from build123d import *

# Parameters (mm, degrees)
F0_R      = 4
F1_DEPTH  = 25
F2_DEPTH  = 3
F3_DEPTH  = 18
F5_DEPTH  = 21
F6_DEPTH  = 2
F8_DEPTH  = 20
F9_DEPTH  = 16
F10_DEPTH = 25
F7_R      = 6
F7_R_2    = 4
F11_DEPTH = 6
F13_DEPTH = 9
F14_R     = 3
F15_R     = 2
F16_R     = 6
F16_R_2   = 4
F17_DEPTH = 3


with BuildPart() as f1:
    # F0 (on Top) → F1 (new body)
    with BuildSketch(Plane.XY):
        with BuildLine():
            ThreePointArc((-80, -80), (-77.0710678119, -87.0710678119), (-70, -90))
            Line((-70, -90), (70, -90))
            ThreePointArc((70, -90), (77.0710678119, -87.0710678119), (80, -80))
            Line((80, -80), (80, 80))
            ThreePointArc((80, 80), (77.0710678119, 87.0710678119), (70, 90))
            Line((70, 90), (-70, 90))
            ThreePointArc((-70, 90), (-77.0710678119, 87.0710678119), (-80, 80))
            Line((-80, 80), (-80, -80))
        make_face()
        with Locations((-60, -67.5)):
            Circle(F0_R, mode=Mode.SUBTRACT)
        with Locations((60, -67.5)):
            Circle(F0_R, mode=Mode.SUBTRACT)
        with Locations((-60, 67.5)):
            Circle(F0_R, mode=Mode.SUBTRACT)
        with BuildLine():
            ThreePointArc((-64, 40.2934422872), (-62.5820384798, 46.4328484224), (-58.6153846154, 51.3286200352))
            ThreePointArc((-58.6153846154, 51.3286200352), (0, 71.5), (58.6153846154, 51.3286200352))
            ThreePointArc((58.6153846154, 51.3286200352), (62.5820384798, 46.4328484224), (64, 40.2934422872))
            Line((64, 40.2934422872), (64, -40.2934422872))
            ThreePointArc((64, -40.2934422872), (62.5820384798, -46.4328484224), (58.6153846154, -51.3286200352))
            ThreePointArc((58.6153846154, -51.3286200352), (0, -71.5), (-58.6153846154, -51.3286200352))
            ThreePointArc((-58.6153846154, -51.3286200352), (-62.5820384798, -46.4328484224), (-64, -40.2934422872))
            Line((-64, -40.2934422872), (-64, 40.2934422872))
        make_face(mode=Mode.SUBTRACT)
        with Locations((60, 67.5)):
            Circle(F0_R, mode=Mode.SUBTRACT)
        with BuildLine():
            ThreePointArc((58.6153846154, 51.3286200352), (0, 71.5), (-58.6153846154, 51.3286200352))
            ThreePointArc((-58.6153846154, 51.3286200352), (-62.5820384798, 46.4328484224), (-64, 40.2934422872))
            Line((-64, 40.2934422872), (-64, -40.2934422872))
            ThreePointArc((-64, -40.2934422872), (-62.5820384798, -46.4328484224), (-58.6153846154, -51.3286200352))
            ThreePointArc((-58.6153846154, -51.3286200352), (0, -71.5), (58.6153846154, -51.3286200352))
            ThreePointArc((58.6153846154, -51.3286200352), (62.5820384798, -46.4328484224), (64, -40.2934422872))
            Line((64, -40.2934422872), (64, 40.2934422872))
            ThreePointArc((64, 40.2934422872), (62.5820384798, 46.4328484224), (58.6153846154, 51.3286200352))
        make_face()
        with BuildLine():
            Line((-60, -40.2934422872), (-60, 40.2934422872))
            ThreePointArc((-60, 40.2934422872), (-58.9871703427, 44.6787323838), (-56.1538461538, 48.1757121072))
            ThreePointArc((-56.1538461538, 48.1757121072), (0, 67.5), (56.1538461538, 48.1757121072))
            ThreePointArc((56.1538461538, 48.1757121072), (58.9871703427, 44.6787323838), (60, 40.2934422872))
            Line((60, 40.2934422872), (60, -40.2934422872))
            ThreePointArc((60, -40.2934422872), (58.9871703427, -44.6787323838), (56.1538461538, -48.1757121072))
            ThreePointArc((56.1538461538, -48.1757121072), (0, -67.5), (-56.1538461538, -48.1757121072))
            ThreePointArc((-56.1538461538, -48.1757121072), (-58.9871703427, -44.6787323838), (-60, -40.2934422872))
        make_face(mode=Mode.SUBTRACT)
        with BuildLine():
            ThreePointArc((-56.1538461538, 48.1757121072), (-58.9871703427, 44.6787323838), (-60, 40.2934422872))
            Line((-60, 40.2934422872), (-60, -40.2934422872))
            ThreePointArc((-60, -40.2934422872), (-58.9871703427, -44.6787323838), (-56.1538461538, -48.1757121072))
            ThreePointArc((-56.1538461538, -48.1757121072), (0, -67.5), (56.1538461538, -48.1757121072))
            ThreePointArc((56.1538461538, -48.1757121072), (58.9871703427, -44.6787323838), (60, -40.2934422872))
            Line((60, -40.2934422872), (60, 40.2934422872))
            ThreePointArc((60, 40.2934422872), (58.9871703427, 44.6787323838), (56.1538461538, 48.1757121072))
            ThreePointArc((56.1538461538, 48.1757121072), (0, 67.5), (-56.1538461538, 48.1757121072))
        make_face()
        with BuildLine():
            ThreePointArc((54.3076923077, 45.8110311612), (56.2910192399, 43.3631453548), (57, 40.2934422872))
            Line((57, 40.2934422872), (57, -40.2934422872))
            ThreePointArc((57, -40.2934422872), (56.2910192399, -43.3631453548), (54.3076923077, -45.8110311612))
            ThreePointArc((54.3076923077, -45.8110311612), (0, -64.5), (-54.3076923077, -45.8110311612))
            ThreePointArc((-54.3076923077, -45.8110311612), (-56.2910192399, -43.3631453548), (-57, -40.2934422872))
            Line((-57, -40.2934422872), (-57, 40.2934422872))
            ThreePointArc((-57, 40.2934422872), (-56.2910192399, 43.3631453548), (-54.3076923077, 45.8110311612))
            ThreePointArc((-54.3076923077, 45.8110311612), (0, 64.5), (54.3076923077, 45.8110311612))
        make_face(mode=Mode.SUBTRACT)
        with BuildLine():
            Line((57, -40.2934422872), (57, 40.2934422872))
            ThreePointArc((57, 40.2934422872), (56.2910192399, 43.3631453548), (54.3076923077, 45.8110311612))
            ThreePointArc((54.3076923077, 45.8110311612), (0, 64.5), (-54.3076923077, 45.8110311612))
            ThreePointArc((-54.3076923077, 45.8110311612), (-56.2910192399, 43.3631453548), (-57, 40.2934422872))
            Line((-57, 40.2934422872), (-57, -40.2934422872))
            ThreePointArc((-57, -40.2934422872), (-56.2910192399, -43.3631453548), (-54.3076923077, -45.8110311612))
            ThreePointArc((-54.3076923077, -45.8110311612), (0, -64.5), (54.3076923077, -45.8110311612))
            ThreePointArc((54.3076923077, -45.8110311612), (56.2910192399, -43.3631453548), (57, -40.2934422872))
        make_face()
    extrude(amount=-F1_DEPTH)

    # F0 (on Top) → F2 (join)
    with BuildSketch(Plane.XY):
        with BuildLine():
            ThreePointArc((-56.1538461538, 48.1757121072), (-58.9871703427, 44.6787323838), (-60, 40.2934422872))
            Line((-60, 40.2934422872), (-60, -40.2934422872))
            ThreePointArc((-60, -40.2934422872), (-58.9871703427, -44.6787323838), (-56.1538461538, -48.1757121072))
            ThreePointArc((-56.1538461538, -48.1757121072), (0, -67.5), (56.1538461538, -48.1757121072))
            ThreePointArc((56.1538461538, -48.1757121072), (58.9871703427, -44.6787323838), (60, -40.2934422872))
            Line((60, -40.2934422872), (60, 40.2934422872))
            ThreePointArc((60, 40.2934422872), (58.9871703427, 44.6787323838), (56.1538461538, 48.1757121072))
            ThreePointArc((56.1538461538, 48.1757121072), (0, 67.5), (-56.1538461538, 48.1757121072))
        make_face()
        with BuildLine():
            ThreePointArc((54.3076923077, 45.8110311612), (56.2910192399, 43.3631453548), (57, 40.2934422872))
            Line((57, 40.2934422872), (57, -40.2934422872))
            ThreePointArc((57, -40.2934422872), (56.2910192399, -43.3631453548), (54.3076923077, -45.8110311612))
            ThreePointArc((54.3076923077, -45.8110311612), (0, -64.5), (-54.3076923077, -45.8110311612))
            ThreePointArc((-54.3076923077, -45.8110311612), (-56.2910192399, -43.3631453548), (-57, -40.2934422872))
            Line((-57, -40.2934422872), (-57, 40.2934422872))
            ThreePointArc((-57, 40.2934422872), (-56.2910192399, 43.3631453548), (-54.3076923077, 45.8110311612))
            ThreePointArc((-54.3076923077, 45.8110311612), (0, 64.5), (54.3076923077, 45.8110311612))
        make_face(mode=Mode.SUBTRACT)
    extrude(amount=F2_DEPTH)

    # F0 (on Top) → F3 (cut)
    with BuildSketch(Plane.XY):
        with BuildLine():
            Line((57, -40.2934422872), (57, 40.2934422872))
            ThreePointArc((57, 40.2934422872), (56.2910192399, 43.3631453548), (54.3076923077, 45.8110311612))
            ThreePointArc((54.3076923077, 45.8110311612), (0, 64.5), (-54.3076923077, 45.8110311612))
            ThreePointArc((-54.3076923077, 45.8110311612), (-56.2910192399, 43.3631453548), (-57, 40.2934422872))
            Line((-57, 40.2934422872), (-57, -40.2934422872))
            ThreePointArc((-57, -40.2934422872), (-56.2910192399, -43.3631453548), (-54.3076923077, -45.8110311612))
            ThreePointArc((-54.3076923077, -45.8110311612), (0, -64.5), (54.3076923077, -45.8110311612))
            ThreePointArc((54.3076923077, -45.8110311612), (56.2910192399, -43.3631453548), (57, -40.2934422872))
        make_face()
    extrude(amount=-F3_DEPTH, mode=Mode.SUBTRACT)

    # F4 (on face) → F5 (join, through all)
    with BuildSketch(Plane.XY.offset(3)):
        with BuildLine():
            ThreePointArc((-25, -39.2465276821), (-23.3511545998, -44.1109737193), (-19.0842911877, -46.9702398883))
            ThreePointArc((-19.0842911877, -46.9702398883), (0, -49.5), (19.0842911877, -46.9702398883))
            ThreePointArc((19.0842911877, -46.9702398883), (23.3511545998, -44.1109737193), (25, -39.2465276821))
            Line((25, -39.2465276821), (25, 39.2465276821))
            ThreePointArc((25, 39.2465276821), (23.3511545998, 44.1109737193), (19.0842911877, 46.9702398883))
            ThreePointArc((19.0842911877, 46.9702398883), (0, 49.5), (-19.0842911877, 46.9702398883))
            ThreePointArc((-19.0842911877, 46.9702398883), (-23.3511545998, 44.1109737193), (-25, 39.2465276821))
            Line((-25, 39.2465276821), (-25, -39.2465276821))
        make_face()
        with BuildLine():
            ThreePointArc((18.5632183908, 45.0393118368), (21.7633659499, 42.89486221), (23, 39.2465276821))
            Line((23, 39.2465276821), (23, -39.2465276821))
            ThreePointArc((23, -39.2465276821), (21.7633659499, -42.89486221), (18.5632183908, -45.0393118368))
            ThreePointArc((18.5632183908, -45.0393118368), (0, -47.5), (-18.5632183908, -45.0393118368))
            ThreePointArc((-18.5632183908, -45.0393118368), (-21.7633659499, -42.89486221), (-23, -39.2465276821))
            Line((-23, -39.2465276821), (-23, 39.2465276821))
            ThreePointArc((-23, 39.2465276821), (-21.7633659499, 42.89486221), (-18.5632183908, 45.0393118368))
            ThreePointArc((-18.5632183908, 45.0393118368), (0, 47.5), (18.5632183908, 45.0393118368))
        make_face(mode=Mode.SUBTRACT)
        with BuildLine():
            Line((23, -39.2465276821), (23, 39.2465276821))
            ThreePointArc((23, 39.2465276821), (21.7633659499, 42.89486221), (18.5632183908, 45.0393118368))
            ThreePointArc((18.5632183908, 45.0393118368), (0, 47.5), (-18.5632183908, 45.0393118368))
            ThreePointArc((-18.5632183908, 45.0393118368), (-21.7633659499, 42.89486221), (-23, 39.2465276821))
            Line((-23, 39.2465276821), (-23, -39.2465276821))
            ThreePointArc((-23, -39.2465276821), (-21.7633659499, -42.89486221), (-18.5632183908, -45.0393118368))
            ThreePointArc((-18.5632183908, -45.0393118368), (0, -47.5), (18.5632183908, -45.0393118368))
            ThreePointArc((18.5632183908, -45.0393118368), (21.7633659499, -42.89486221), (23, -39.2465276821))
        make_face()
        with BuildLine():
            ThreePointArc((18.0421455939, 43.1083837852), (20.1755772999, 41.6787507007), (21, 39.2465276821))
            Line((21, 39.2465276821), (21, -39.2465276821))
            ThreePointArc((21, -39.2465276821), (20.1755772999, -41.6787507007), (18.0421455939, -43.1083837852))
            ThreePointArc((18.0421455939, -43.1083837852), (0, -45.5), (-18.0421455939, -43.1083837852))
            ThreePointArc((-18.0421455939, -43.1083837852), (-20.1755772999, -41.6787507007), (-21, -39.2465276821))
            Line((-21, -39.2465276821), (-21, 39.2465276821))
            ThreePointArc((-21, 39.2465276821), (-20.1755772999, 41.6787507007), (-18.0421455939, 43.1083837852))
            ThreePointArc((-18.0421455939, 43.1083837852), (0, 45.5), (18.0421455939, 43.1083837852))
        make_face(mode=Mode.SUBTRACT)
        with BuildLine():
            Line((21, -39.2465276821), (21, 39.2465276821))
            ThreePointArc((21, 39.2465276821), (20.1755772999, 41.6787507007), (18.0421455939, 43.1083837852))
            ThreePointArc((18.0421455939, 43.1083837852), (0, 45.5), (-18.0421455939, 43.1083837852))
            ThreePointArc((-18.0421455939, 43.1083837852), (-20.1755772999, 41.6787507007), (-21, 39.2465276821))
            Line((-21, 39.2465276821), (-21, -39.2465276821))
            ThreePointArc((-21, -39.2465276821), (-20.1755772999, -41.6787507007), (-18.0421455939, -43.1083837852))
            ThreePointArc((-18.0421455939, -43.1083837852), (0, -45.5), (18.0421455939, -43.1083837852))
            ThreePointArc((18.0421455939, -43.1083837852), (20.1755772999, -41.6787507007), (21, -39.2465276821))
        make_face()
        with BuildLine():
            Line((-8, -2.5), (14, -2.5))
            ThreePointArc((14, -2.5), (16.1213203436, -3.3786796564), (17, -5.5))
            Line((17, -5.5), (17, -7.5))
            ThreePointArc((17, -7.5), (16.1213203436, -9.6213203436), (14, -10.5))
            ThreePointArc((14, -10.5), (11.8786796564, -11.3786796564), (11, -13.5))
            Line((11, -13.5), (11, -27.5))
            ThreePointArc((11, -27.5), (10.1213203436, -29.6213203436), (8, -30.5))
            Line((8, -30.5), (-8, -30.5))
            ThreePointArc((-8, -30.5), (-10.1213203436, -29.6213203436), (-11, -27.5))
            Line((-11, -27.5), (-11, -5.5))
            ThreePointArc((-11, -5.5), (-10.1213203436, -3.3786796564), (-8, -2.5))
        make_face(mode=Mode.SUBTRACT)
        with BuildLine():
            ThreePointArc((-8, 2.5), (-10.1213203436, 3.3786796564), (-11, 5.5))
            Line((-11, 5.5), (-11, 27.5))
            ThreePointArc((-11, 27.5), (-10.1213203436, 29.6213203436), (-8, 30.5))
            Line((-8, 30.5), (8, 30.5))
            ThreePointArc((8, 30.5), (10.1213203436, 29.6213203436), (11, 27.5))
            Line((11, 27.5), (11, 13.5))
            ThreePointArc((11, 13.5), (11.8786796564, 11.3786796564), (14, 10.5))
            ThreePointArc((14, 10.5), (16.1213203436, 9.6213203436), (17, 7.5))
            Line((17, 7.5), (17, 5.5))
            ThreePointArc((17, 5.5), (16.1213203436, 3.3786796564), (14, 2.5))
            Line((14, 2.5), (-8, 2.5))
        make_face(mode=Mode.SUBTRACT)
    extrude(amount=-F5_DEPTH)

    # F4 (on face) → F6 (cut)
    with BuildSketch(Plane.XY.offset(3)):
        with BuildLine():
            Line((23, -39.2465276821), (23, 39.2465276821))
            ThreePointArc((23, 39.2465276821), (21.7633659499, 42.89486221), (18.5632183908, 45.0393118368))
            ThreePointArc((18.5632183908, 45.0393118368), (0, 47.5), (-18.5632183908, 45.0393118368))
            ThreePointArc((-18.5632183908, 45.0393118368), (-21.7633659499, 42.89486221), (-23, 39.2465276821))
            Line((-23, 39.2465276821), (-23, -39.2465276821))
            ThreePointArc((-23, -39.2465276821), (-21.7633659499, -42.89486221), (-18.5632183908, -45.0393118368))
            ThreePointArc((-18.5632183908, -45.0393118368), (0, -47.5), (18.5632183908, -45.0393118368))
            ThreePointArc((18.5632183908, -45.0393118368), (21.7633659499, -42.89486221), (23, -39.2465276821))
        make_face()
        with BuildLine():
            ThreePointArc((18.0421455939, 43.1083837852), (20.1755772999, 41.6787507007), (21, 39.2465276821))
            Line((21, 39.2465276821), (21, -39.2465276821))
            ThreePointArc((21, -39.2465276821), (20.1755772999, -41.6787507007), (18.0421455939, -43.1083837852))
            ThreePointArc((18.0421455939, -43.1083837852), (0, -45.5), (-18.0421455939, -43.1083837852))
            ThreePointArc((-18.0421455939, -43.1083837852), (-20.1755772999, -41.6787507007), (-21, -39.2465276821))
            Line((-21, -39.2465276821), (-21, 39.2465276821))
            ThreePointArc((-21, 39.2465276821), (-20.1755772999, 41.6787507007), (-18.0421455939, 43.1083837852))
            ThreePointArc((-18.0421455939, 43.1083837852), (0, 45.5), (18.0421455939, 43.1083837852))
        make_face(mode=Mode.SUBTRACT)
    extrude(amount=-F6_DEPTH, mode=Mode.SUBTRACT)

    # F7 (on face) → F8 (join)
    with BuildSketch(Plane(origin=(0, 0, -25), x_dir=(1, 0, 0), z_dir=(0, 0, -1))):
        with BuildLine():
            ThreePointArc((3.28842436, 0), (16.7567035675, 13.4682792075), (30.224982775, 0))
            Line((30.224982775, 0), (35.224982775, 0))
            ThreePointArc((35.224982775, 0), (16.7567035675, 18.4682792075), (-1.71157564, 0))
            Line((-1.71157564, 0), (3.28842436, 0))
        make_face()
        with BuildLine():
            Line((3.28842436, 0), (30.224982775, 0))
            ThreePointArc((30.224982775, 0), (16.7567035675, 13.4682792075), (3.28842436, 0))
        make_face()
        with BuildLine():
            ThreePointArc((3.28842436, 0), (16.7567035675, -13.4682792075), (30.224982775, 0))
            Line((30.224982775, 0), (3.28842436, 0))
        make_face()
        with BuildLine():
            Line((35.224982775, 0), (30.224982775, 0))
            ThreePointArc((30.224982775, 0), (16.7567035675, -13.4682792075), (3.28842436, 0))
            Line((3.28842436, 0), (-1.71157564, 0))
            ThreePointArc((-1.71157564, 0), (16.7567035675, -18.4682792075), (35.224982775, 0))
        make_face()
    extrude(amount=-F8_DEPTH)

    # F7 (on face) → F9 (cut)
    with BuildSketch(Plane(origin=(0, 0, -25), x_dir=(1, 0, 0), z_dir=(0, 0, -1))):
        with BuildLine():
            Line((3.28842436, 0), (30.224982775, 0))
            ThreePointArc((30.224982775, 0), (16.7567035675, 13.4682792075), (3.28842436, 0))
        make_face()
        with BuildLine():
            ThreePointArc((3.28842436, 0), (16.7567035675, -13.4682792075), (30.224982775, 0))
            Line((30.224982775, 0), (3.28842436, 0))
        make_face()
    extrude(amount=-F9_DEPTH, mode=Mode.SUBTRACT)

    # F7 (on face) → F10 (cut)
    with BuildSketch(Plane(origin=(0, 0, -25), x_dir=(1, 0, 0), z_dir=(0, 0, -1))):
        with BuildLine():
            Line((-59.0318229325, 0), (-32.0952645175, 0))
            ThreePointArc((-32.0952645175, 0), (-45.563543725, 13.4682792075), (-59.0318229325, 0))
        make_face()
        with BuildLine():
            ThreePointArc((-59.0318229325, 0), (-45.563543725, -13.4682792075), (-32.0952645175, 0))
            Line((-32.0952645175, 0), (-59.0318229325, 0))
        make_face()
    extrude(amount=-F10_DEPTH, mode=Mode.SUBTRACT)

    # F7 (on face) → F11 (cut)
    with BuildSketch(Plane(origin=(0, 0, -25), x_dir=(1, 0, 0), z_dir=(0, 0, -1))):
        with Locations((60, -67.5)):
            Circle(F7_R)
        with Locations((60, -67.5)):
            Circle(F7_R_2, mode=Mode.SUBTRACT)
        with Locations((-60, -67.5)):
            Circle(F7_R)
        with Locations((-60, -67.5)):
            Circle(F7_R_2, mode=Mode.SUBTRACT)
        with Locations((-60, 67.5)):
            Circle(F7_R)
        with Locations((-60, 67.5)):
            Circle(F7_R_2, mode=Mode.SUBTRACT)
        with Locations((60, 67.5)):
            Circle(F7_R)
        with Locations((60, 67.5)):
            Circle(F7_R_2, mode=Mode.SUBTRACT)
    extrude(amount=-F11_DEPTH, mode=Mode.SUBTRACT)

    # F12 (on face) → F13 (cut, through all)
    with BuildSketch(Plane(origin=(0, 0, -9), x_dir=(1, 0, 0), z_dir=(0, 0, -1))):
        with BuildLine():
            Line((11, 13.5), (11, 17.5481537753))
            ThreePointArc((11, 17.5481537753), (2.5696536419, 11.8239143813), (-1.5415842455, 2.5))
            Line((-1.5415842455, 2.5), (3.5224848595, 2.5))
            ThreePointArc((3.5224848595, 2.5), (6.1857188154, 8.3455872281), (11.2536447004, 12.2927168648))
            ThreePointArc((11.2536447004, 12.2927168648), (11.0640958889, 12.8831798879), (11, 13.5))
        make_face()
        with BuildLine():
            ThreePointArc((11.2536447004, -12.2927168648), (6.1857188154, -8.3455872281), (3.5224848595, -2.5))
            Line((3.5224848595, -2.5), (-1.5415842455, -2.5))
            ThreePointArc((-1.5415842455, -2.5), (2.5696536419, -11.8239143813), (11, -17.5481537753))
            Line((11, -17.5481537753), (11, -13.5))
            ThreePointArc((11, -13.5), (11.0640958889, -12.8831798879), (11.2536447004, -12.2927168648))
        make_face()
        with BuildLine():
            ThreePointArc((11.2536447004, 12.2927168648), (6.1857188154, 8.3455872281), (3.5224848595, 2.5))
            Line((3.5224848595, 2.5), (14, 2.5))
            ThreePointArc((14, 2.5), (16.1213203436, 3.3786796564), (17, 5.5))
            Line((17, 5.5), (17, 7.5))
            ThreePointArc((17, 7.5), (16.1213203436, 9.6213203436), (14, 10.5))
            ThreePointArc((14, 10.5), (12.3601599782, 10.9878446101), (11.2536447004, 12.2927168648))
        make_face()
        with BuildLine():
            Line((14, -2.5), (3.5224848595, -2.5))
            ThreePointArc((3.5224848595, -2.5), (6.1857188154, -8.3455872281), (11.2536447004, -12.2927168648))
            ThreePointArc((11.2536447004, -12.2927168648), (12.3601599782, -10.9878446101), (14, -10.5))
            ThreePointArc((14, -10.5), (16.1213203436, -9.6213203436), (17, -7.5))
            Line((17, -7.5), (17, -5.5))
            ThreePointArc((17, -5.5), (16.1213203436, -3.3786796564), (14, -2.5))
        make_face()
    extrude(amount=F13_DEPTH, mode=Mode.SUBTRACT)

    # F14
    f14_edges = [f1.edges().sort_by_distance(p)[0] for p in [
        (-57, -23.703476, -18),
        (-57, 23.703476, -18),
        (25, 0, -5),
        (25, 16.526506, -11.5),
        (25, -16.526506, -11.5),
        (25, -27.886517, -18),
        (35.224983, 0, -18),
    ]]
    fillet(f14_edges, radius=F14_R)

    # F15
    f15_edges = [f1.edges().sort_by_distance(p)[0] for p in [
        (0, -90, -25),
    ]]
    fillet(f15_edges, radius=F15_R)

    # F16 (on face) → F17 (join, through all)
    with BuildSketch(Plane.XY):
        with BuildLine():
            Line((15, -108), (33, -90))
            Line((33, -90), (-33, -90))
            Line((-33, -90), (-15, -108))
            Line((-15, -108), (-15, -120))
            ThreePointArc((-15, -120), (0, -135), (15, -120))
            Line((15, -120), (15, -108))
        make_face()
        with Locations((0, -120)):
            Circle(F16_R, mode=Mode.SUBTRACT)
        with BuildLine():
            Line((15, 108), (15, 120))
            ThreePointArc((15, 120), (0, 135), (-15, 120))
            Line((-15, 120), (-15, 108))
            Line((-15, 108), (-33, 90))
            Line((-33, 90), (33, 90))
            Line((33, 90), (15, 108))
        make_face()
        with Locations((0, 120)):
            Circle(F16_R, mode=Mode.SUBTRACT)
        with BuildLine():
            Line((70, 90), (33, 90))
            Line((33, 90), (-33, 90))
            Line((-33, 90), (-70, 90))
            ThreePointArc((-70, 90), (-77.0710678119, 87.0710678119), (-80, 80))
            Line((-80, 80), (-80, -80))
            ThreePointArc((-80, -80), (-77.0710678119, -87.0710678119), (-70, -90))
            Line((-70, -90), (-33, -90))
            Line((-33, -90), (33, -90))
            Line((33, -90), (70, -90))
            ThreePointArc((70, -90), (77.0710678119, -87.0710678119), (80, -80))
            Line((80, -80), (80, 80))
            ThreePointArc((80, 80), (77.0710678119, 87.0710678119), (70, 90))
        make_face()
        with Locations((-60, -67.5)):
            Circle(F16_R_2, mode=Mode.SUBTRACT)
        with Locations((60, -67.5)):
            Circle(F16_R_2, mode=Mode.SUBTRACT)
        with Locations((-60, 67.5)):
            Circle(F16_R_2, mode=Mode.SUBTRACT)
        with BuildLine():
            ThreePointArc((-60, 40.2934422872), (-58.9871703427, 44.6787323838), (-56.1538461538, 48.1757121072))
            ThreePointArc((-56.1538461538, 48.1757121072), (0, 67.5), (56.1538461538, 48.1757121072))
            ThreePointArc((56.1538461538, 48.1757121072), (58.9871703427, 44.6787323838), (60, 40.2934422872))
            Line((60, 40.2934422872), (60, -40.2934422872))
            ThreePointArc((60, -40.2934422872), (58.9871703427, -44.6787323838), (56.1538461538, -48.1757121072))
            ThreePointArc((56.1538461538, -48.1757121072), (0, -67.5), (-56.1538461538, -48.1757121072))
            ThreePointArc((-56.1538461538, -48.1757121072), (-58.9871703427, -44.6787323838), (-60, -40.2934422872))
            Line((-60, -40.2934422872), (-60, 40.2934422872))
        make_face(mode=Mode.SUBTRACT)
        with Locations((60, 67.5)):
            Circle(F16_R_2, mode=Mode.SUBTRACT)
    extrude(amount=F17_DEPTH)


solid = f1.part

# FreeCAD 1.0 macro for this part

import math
import FreeCAD as App
import Part
import Sketcher

V = App.Vector
Q = App.Units.Quantity


def edges_at(feature, points):
    """Names of the edges that pass closest to the given points."""
    edges = feature.Shape.Edges
    near = lambda p: min(range(len(edges)), key=lambda i: edges[i].distToShape(Part.Vertex(*p))[0])
    return sorted({f"Edge{near(p) + 1}" for p in points})

doc = App.newDocument("Part")
body = doc.addObject("PartDesign::Body", "Body")

sketch1 = body.newObject("Sketcher::SketchObject", "Sketch")
sketch1.AttachmentSupport = (doc.getObject("XY_Plane"), [""])
sketch1.MapMode = "FlatFace"
sketch1.addGeometry([
    Part.ArcOfCircle(Part.Circle(V(-70, -80, 0), V(0, 0, 1), 10), math.radians(180), math.radians(270)),
    Part.LineSegment(V(-70, -90, 0), V(70, -90, 0)),
    Part.ArcOfCircle(Part.Circle(V(70, -80, 0), V(0, 0, 1), 10), math.radians(-90), math.radians(0)),
    Part.LineSegment(V(80, -80, 0), V(80, 80, 0)),
    Part.ArcOfCircle(Part.Circle(V(70, 80, 0), V(0, 0, 1), 10), math.radians(0), math.radians(90)),
    Part.LineSegment(V(70, 90, 0), V(-70, 90, 0)),
    Part.ArcOfCircle(Part.Circle(V(-70, 80, 0), V(0, 0, 1), 10), math.radians(90), math.radians(180)),
    Part.LineSegment(V(-80, 80, 0), V(-80, -80, 0)),
    Part.Circle(V(-60, -67.5, 0), V(0, 0, 1), 4),
    Part.Circle(V(60, -67.5, 0), V(0, 0, 1), 4),
    Part.Circle(V(-60, 67.5, 0), V(0, 0, 1), 4),
    Part.Circle(V(60, 67.5, 0), V(0, 0, 1), 4),
], False)
sketch1.addConstraint([
    Sketcher.Constraint("Tangent", 0, 2, 1, 1),
    Sketcher.Constraint("Tangent", 1, 2, 2, 1),
    Sketcher.Constraint("Tangent", 2, 2, 3, 1),
    Sketcher.Constraint("Tangent", 3, 2, 4, 1),
    Sketcher.Constraint("Tangent", 4, 2, 5, 1),
    Sketcher.Constraint("Tangent", 5, 2, 6, 1),
    Sketcher.Constraint("Tangent", 6, 2, 7, 1),
    Sketcher.Constraint("Tangent", 7, 2, 0, 1),
    Sketcher.Constraint("Horizontal", 1),
    Sketcher.Constraint("Vertical", 3),
    Sketcher.Constraint("Horizontal", 5),
    Sketcher.Constraint("Vertical", 7),
    Sketcher.Constraint("Equal", 0, 2),
    Sketcher.Constraint("Equal", 2, 4),
    Sketcher.Constraint("Equal", 4, 6),
    Sketcher.Constraint("Equal", 8, 9),
    Sketcher.Constraint("Equal", 9, 10),
    Sketcher.Constraint("Equal", 10, 11),
    Sketcher.Constraint("Symmetric", 0, 3, 4, 3, -1, 1),
    Sketcher.Constraint("Symmetric", 9, 3, 10, 3, -1, 1),
    Sketcher.Constraint("Symmetric", 8, 3, 11, 3, -1, 1),
    Sketcher.Constraint("Symmetric", 8, 3, 9, 3, -2),
    Sketcher.Constraint("Diameter", 8, Q("8 mm")),
    Sketcher.Constraint("Radius", 0, Q("10 mm")),
    Sketcher.Constraint("DistanceX", 1, 1, 1, 2, Q("140 mm")),
    Sketcher.Constraint("DistanceY", 3, 1, 3, 2, Q("160 mm")),
    Sketcher.Constraint("DistanceX", 8, 3, -1, 1, Q("60 mm")),
    Sketcher.Constraint("DistanceY", 8, 3, 10, 3, Q("135 mm")),
])
pad1 = body.newObject("PartDesign::Pad", "Pad")
pad1.Profile = sketch1
pad1.Length = 25
pad1.Reversed = True

sketch2 = body.newObject("Sketcher::SketchObject", "Sketch001")
sketch2.AttachmentSupport = (doc.getObject("XY_Plane"), [""])
sketch2.MapMode = "FlatFace"
sketch2.addGeometry([
    Part.ArcOfCircle(Part.Circle(V(-50, 40, 0), V(0, 0, 1), 10), math.radians(128), math.radians(180)),
    Part.LineSegment(V(-60, 40, 0), V(-60, -40, 0)),
    Part.ArcOfCircle(Part.Circle(V(-50, -40, 0), V(0, 0, 1), 10), math.radians(180), math.radians(232)),
    Part.ArcOfCircle(Part.Circle(V(0, 24, 0), V(0, 0, 1), 91), math.radians(-128), math.radians(-52)),
    Part.ArcOfCircle(Part.Circle(V(50, -40, 0), V(0, 0, 1), 10), math.radians(-52), math.radians(0)),
    Part.LineSegment(V(60, -40, 0), V(60, 40, 0)),
    Part.ArcOfCircle(Part.Circle(V(50, 40, 0), V(0, 0, 1), 10), math.radians(0), math.radians(52)),
    Part.ArcOfCircle(Part.Circle(V(0, -24, 0), V(0, 0, 1), 91), math.radians(52), math.radians(128)),
    Part.ArcOfCircle(Part.Circle(V(0, -24, 0), V(0, 0, 1), 88), math.radians(52), math.radians(128)),
    Part.ArcOfCircle(Part.Circle(V(50, 40, 0), V(0, 0, 1), 7), math.radians(0), math.radians(52)),
    Part.LineSegment(V(57, 40, 0), V(57, -40, 0)),
    Part.ArcOfCircle(Part.Circle(V(50, -40, 0), V(0, 0, 1), 7), math.radians(-52), math.radians(0)),
    Part.ArcOfCircle(Part.Circle(V(0, 24, 0), V(0, 0, 1), 88), math.radians(-128), math.radians(-52)),
    Part.ArcOfCircle(Part.Circle(V(-50, -40, 0), V(0, 0, 1), 7), math.radians(180), math.radians(232)),
    Part.LineSegment(V(-57, -40, 0), V(-57, 40, 0)),
    Part.ArcOfCircle(Part.Circle(V(-50, 40, 0), V(0, 0, 1), 7), math.radians(128), math.radians(180)),
], False)
sketch2.addConstraint([
    Sketcher.Constraint("Tangent", 0, 2, 1, 1),
    Sketcher.Constraint("Tangent", 1, 2, 2, 1),
    Sketcher.Constraint("Tangent", 2, 2, 3, 1),
    Sketcher.Constraint("Tangent", 3, 2, 4, 1),
    Sketcher.Constraint("Tangent", 4, 2, 5, 1),
    Sketcher.Constraint("Tangent", 5, 2, 6, 1),
    Sketcher.Constraint("Tangent", 6, 2, 7, 1),
    Sketcher.Constraint("Tangent", 7, 2, 0, 1),
    Sketcher.Constraint("Tangent", 8, 1, 9, 2),
    Sketcher.Constraint("Tangent", 9, 1, 10, 1),
    Sketcher.Constraint("Tangent", 10, 2, 11, 2),
    Sketcher.Constraint("Tangent", 11, 1, 12, 2),
    Sketcher.Constraint("Tangent", 12, 1, 13, 2),
    Sketcher.Constraint("Tangent", 13, 1, 14, 1),
    Sketcher.Constraint("Tangent", 14, 2, 15, 2),
    Sketcher.Constraint("Tangent", 15, 1, 8, 2),
    Sketcher.Constraint("Vertical", 1),
    Sketcher.Constraint("Vertical", 5),
    Sketcher.Constraint("Vertical", 10),
    Sketcher.Constraint("Vertical", 14),
    Sketcher.Constraint("Coincident", 8, 3, 7, 3),
    Sketcher.Constraint("Coincident", 9, 3, 6, 3),
    Sketcher.Constraint("Coincident", 11, 3, 4, 3),
    Sketcher.Constraint("Coincident", 12, 3, 3, 3),
    Sketcher.Constraint("Coincident", 13, 3, 2, 3),
    Sketcher.Constraint("Equal", 0, 2),
    Sketcher.Constraint("Equal", 2, 4),
    Sketcher.Constraint("Equal", 4, 6),
    Sketcher.Constraint("Equal", 3, 7),
    Sketcher.Constraint("Equal", 13, 15),
    Sketcher.Constraint("Symmetric", 0, 3, 4, 3, -1, 1),
    Sketcher.Constraint("Symmetric", 3, 3, 7, 3, -1),
    Sketcher.Constraint("Radius", 0, Q("10 mm")),
    Sketcher.Constraint("Radius", 9, Q("7 mm")),
    Sketcher.Constraint("Radius", 3, Q("91.25 mm")),
    Sketcher.Constraint("DistanceX", 0, 3, -1, 1, Q("50 mm")),
    Sketcher.Constraint("DistanceY", 7, 3, 3, 3, Q("47.5 mm")),
])
pad2 = body.newObject("PartDesign::Pad", "Pad001")
pad2.Profile = sketch2
pad2.Length = 3

sketch3 = body.newObject("Sketcher::SketchObject", "Sketch002")
sketch3.AttachmentSupport = (doc.getObject("XY_Plane"), [""])
sketch3.MapMode = "FlatFace"
sketch3.addGeometry([
    Part.LineSegment(V(57, -40, 0), V(57, 40, 0)),
    Part.ArcOfCircle(Part.Circle(V(50, 40, 0), V(0, 0, 1), 7), math.radians(0), math.radians(52)),
    Part.ArcOfCircle(Part.Circle(V(0, -24, 0), V(0, 0, 1), 88), math.radians(52), math.radians(128)),
    Part.ArcOfCircle(Part.Circle(V(-50, 40, 0), V(0, 0, 1), 7), math.radians(128), math.radians(180)),
    Part.LineSegment(V(-57, 40, 0), V(-57, -40, 0)),
    Part.ArcOfCircle(Part.Circle(V(-50, -40, 0), V(0, 0, 1), 7), math.radians(180), math.radians(232)),
    Part.ArcOfCircle(Part.Circle(V(0, 24, 0), V(0, 0, 1), 88), math.radians(-128), math.radians(-52)),
    Part.ArcOfCircle(Part.Circle(V(50, -40, 0), V(0, 0, 1), 7), math.radians(-52), math.radians(0)),
], False)
sketch3.addConstraint([
    Sketcher.Constraint("Tangent", 0, 2, 1, 1),
    Sketcher.Constraint("Tangent", 1, 2, 2, 1),
    Sketcher.Constraint("Tangent", 2, 2, 3, 1),
    Sketcher.Constraint("Tangent", 3, 2, 4, 1),
    Sketcher.Constraint("Tangent", 4, 2, 5, 1),
    Sketcher.Constraint("Tangent", 5, 2, 6, 1),
    Sketcher.Constraint("Tangent", 6, 2, 7, 1),
    Sketcher.Constraint("Tangent", 7, 2, 0, 1),
    Sketcher.Constraint("Vertical", 0),
    Sketcher.Constraint("Vertical", 4),
    Sketcher.Constraint("Equal", 1, 3),
    Sketcher.Constraint("Equal", 3, 5),
    Sketcher.Constraint("Equal", 2, 6),
    Sketcher.Constraint("Equal", 5, 7),
    Sketcher.Constraint("Symmetric", 1, 3, 5, 3, -1, 1),
    Sketcher.Constraint("Symmetric", 2, 3, 6, 3, -1),
    Sketcher.Constraint("Radius", 1, Q("7 mm")),
    Sketcher.Constraint("Radius", 2, Q("88.25 mm")),
    Sketcher.Constraint("DistanceX", -1, 1, 1, 3, Q("50 mm")),
    Sketcher.Constraint("DistanceY", 2, 3, 6, 3, Q("47.5 mm")),
])
pocket1 = body.newObject("PartDesign::Pocket", "Pocket")
pocket1.Profile = sketch3
pocket1.Length = 18

sketch4 = body.newObject("Sketcher::SketchObject", "Sketch003")
sketch4.AttachmentSupport = (doc.getObject("XY_Plane"), [""])
sketch4.MapMode = "FlatFace"
sketch4.AttachmentOffset = App.Placement(V(0, 0, 3), App.Rotation())
sketch4.addGeometry([
    Part.ArcOfCircle(Part.Circle(V(-17, -39.2, 0), V(0, 0, 1), 8), math.radians(180), math.radians(255)),
    Part.ArcOfCircle(Part.Circle(V(0, 23.7, 0), V(0, 0, 1), 73.2), math.radians(-105), math.radians(-75)),
    Part.ArcOfCircle(Part.Circle(V(17, -39.2, 0), V(0, 0, 1), 8), math.radians(-75), math.radians(0)),
    Part.LineSegment(V(25, -39.2, 0), V(25, 39.2, 0)),
    Part.ArcOfCircle(Part.Circle(V(17, 39.2, 0), V(0, 0, 1), 8), math.radians(0), math.radians(75)),
    Part.ArcOfCircle(Part.Circle(V(0, -23.7, 0), V(0, 0, 1), 73.2), math.radians(75), math.radians(105)),
    Part.ArcOfCircle(Part.Circle(V(-17, 39.2, 0), V(0, 0, 1), 8), math.radians(105), math.radians(180)),
    Part.LineSegment(V(-25, 39.2, 0), V(-25, -39.2, 0)),
    Part.ArcOfCircle(Part.Circle(V(-8, -5.5, 0), V(0, 0, 1), 3), math.radians(90), math.radians(180)),
    Part.LineSegment(V(-8, -2.5, 0), V(14, -2.5, 0)),
    Part.ArcOfCircle(Part.Circle(V(14, -5.5, 0), V(0, 0, 1), 3), math.radians(0), math.radians(90)),
    Part.LineSegment(V(17, -5.5, 0), V(17, -7.5, 0)),
    Part.ArcOfCircle(Part.Circle(V(14, -7.5, 0), V(0, 0, 1), 3), math.radians(-90), math.radians(0)),
    Part.ArcOfCircle(Part.Circle(V(14, -13.5, 0), V(0, 0, 1), 3), math.radians(90), math.radians(180)),
    Part.LineSegment(V(11, -13.5, 0), V(11, -27.5, 0)),
    Part.ArcOfCircle(Part.Circle(V(8, -27.5, 0), V(0, 0, 1), 3), math.radians(-90), math.radians(0)),
    Part.LineSegment(V(8, -30.5, 0), V(-8, -30.5, 0)),
    Part.ArcOfCircle(Part.Circle(V(-8, -27.5, 0), V(0, 0, 1), 3), math.radians(180), math.radians(270)),
    Part.LineSegment(V(-11, -27.5, 0), V(-11, -5.5, 0)),
    Part.LineSegment(V(14, 2.5, 0), V(-8, 2.5, 0)),
    Part.ArcOfCircle(Part.Circle(V(-8, 5.5, 0), V(0, 0, 1), 3), math.radians(180), math.radians(270)),
    Part.LineSegment(V(-11, 5.5, 0), V(-11, 27.5, 0)),
    Part.ArcOfCircle(Part.Circle(V(-8, 27.5, 0), V(0, 0, 1), 3), math.radians(90), math.radians(180)),
    Part.LineSegment(V(-8, 30.5, 0), V(8, 30.5, 0)),
    Part.ArcOfCircle(Part.Circle(V(8, 27.5, 0), V(0, 0, 1), 3), math.radians(0), math.radians(90)),
    Part.LineSegment(V(11, 27.5, 0), V(11, 13.5, 0)),
    Part.ArcOfCircle(Part.Circle(V(14, 13.5, 0), V(0, 0, 1), 3), math.radians(180), math.radians(270)),
    Part.ArcOfCircle(Part.Circle(V(14, 7.5, 0), V(0, 0, 1), 3), math.radians(0), math.radians(90)),
    Part.LineSegment(V(17, 7.5, 0), V(17, 5.5, 0)),
    Part.ArcOfCircle(Part.Circle(V(14, 5.5, 0), V(0, 0, 1), 3), math.radians(-90), math.radians(0)),
], False)
sketch4.addConstraint([
    Sketcher.Constraint("Tangent", 0, 2, 1, 1),
    Sketcher.Constraint("Tangent", 1, 2, 2, 1),
    Sketcher.Constraint("Tangent", 2, 2, 3, 1),
    Sketcher.Constraint("Tangent", 3, 2, 4, 1),
    Sketcher.Constraint("Tangent", 4, 2, 5, 1),
    Sketcher.Constraint("Tangent", 5, 2, 6, 1),
    Sketcher.Constraint("Tangent", 6, 2, 7, 1),
    Sketcher.Constraint("Tangent", 7, 2, 0, 1),
    Sketcher.Constraint("Tangent", 8, 1, 9, 1),
    Sketcher.Constraint("Tangent", 9, 2, 10, 2),
    Sketcher.Constraint("Tangent", 10, 1, 11, 1),
    Sketcher.Constraint("Tangent", 11, 2, 12, 2),
    Sketcher.Constraint("Tangent", 12, 1, 13, 1),
    Sketcher.Constraint("Tangent", 13, 2, 14, 1),
    Sketcher.Constraint("Tangent", 14, 2, 15, 2),
    Sketcher.Constraint("Tangent", 15, 1, 16, 1),
    Sketcher.Constraint("Tangent", 16, 2, 17, 2),
    Sketcher.Constraint("Tangent", 17, 1, 18, 1),
    Sketcher.Constraint("Tangent", 18, 2, 8, 2),
    Sketcher.Constraint("Tangent", 19, 2, 20, 2),
    Sketcher.Constraint("Tangent", 20, 1, 21, 1),
    Sketcher.Constraint("Tangent", 21, 2, 22, 2),
    Sketcher.Constraint("Tangent", 22, 1, 23, 1),
    Sketcher.Constraint("Tangent", 23, 2, 24, 2),
    Sketcher.Constraint("Tangent", 24, 1, 25, 1),
    Sketcher.Constraint("Tangent", 25, 2, 26, 1),
    Sketcher.Constraint("Tangent", 26, 2, 27, 2),
    Sketcher.Constraint("Tangent", 27, 1, 28, 1),
    Sketcher.Constraint("Tangent", 28, 2, 29, 2),
    Sketcher.Constraint("Tangent", 29, 1, 19, 1),
    Sketcher.Constraint("Vertical", 3),
    Sketcher.Constraint("Vertical", 7),
    Sketcher.Constraint("Horizontal", 9),
    Sketcher.Constraint("Vertical", 11),
    Sketcher.Constraint("Vertical", 14),
    Sketcher.Constraint("Horizontal", 16),
    Sketcher.Constraint("Vertical", 18),
    Sketcher.Constraint("Horizontal", 19),
    Sketcher.Constraint("Vertical", 21),
    Sketcher.Constraint("Horizontal", 23),
    Sketcher.Constraint("Vertical", 25),
    Sketcher.Constraint("Vertical", 28),
    Sketcher.Constraint("Equal", 0, 2),
    Sketcher.Constraint("Equal", 2, 4),
    Sketcher.Constraint("Equal", 1, 5),
    Sketcher.Constraint("Equal", 4, 6),
    Sketcher.Constraint("Equal", 8, 10),
    Sketcher.Constraint("Equal", 10, 12),
    Sketcher.Constraint("Equal", 12, 13),
    Sketcher.Constraint("Equal", 13, 15),
    Sketcher.Constraint("Equal", 15, 17),
    Sketcher.Constraint("Equal", 17, 20),
    Sketcher.Constraint("Equal", 20, 22),
    Sketcher.Constraint("Equal", 22, 24),
    Sketcher.Constraint("Equal", 24, 26),
    Sketcher.Constraint("Equal", 26, 27),
    Sketcher.Constraint("Equal", 27, 29),
    Sketcher.Constraint("Symmetric", 0, 3, 4, 3, -1, 1),
    Sketcher.Constraint("Symmetric", 15, 3, 22, 3, -1, 1),
    Sketcher.Constraint("Symmetric", 1, 3, 5, 3, -1),
    Sketcher.Constraint("Symmetric", 8, 3, 20, 3, -1),
    Sketcher.Constraint("Symmetric", 13, 3, 26, 3, -1),
    Sketcher.Constraint("Vertical", 12, 3, 13, 3),
    Sketcher.Constraint("Vertical", 26, 3, 27, 3),
    Sketcher.Constraint("Vertical", 4, 3, 10, 1),
    Sketcher.Constraint("Equal", 19, 18),
    Sketcher.Constraint("Radius", 0, Q("8 mm")),
    Sketcher.Constraint("Radius", 8, Q("3 mm")),
    Sketcher.Constraint("DistanceX", 9, 1, 9, 2, Q("22 mm")),
    Sketcher.Constraint("DistanceY", 11, 2, 11, 1, Q("2 mm")),
    Sketcher.Constraint("Radius", 1, Q("73.25 mm")),
    Sketcher.Constraint("DistanceY", 8, 3, 20, 3, Q("11 mm")),
    Sketcher.Constraint("DistanceY", 5, 3, 1, 3, Q("47.5 mm")),
])
pad3 = body.newObject("PartDesign::Pad", "Pad002")
pad3.Profile = sketch4
pad3.Type = "UpToLast"
pad3.Reversed = True

sketch5 = body.newObject("Sketcher::SketchObject", "Sketch004")
sketch5.AttachmentSupport = (doc.getObject("XY_Plane"), [""])
sketch5.MapMode = "FlatFace"
sketch5.AttachmentOffset = App.Placement(V(0, 0, 3), App.Rotation())
sketch5.addGeometry([
    Part.LineSegment(V(23, -39.2, 0), V(23, 39.2, 0)),
    Part.ArcOfCircle(Part.Circle(V(17, 39.2, 0), V(0, 0, 1), 6), math.radians(0), math.radians(75)),
    Part.ArcOfCircle(Part.Circle(V(0, -23.8, 0), V(0, 0, 1), 71.3), math.radians(75), math.radians(105)),
    Part.ArcOfCircle(Part.Circle(V(-17, 39.2, 0), V(0, 0, 1), 6), math.radians(105), math.radians(180)),
    Part.LineSegment(V(-23, 39.2, 0), V(-23, -39.2, 0)),
    Part.ArcOfCircle(Part.Circle(V(-17, -39.2, 0), V(0, 0, 1), 6), math.radians(180), math.radians(255)),
    Part.ArcOfCircle(Part.Circle(V(0, 23.8, 0), V(0, 0, 1), 71.3), math.radians(-105), math.radians(-75)),
    Part.ArcOfCircle(Part.Circle(V(17, -39.2, 0), V(0, 0, 1), 6), math.radians(-75), math.radians(0)),
    Part.ArcOfCircle(Part.Circle(V(0, -23.8, 0), V(0, 0, 1), 69.2), math.radians(75), math.radians(105)),
    Part.ArcOfCircle(Part.Circle(V(17, 39.2, 0), V(0, 0, 1), 4), math.radians(0), math.radians(75)),
    Part.LineSegment(V(21, 39.2, 0), V(21, -39.2, 0)),
    Part.ArcOfCircle(Part.Circle(V(17, -39.2, 0), V(0, 0, 1), 4), math.radians(-75), math.radians(0)),
    Part.ArcOfCircle(Part.Circle(V(0, 23.8, 0), V(0, 0, 1), 69.2), math.radians(-105), math.radians(-75)),
    Part.ArcOfCircle(Part.Circle(V(-17, -39.2, 0), V(0, 0, 1), 4), math.radians(180), math.radians(255)),
    Part.LineSegment(V(-21, -39.2, 0), V(-21, 39.2, 0)),
    Part.ArcOfCircle(Part.Circle(V(-17, 39.2, 0), V(0, 0, 1), 4), math.radians(105), math.radians(180)),
], False)
sketch5.addConstraint([
    Sketcher.Constraint("Tangent", 0, 2, 1, 1),
    Sketcher.Constraint("Tangent", 1, 2, 2, 1),
    Sketcher.Constraint("Tangent", 2, 2, 3, 1),
    Sketcher.Constraint("Tangent", 3, 2, 4, 1),
    Sketcher.Constraint("Tangent", 4, 2, 5, 1),
    Sketcher.Constraint("Tangent", 5, 2, 6, 1),
    Sketcher.Constraint("Tangent", 6, 2, 7, 1),
    Sketcher.Constraint("Tangent", 7, 2, 0, 1),
    Sketcher.Constraint("Tangent", 8, 1, 9, 2),
    Sketcher.Constraint("Tangent", 9, 1, 10, 1),
    Sketcher.Constraint("Tangent", 10, 2, 11, 2),
    Sketcher.Constraint("Tangent", 11, 1, 12, 2),
    Sketcher.Constraint("Tangent", 12, 1, 13, 2),
    Sketcher.Constraint("Tangent", 13, 1, 14, 1),
    Sketcher.Constraint("Tangent", 14, 2, 15, 2),
    Sketcher.Constraint("Tangent", 15, 1, 8, 2),
    Sketcher.Constraint("Vertical", 0),
    Sketcher.Constraint("Vertical", 4),
    Sketcher.Constraint("Vertical", 10),
    Sketcher.Constraint("Vertical", 14),
    Sketcher.Constraint("Coincident", 8, 3, 2, 3),
    Sketcher.Constraint("Coincident", 9, 3, 1, 3),
    Sketcher.Constraint("Coincident", 11, 3, 7, 3),
    Sketcher.Constraint("Coincident", 12, 3, 6, 3),
    Sketcher.Constraint("Coincident", 13, 3, 5, 3),
    Sketcher.Constraint("Equal", 1, 3),
    Sketcher.Constraint("Equal", 3, 5),
    Sketcher.Constraint("Equal", 2, 6),
    Sketcher.Constraint("Equal", 5, 7),
    Sketcher.Constraint("Equal", 13, 15),
    Sketcher.Constraint("Symmetric", 1, 3, 5, 3, -1, 1),
    Sketcher.Constraint("Symmetric", 2, 3, 6, 3, -1),
    Sketcher.Constraint("Radius", 1, Q("6 mm")),
    Sketcher.Constraint("Radius", 9, Q("4 mm")),
    Sketcher.Constraint("Radius", 2, Q("71.25 mm")),
    Sketcher.Constraint("DistanceX", -1, 1, 1, 3, Q("17 mm")),
    Sketcher.Constraint("DistanceY", 2, 3, 6, 3, Q("47.5 mm")),
])
pocket2 = body.newObject("PartDesign::Pocket", "Pocket001")
pocket2.Profile = sketch5
pocket2.Length = 2

sketch6 = body.newObject("Sketcher::SketchObject", "Sketch005")
sketch6.AttachmentSupport = (doc.getObject("XY_Plane"), [""])
sketch6.MapMode = "FlatFace"
sketch6.AttachmentOffset = App.Placement(V(0, 0, -25), App.Rotation())
sketch6.addGeometry(Part.Circle(V(17, 0, 0), V(0, 0, 1), 18), False)
sketch6.addConstraint([
    Sketcher.Constraint("PointOnObject", 0, 3, -1),
    Sketcher.Constraint("Diameter", 0, Q("36.936558 mm")),
    Sketcher.Constraint("DistanceX", -1, 1, 0, 3, Q("16.756704 mm")),
])
pad4 = body.newObject("PartDesign::Pad", "Pad003")
pad4.Profile = sketch6
pad4.Length = 20

sketch7 = body.newObject("Sketcher::SketchObject", "Sketch006")
sketch7.AttachmentSupport = (doc.getObject("XY_Plane"), [""])
sketch7.MapMode = "FlatFace"
sketch7.AttachmentOffset = App.Placement(V(0, 0, -25), App.Rotation())
sketch7.addGeometry(Part.Circle(V(17, 0, 0), V(0, 0, 1), 13), False)
sketch7.addConstraint([
    Sketcher.Constraint("PointOnObject", 0, 3, -1),
    Sketcher.Constraint("Diameter", 0, Q("26.936558 mm")),
    Sketcher.Constraint("DistanceX", -1, 1, 0, 3, Q("16.756704 mm")),
])
pocket3 = body.newObject("PartDesign::Pocket", "Pocket002")
pocket3.Profile = sketch7
pocket3.Length = 16
pocket3.Reversed = True

sketch8 = body.newObject("Sketcher::SketchObject", "Sketch007")
sketch8.AttachmentSupport = (doc.getObject("XY_Plane"), [""])
sketch8.MapMode = "FlatFace"
sketch8.AttachmentOffset = App.Placement(V(0, 0, -25), App.Rotation())
sketch8.addGeometry(Part.Circle(V(-46, 0, 0), V(0, 0, 1), 13), False)
sketch8.addConstraint([
    Sketcher.Constraint("PointOnObject", 0, 3, -1),
    Sketcher.Constraint("Diameter", 0, Q("26.936558 mm")),
    Sketcher.Constraint("DistanceX", 0, 3, -1, 1, Q("45.563544 mm")),
])
pocket4 = body.newObject("PartDesign::Pocket", "Pocket003")
pocket4.Profile = sketch8
pocket4.Length = 25
pocket4.Reversed = True

sketch9 = body.newObject("Sketcher::SketchObject", "Sketch008")
sketch9.AttachmentSupport = (doc.getObject("XY_Plane"), [""])
sketch9.MapMode = "FlatFace"
sketch9.AttachmentOffset = App.Placement(V(0, 0, -25), App.Rotation())
sketch9.addGeometry([
    Part.Circle(V(60, 67.5, 0), V(0, 0, 1), 6),
    Part.Circle(V(60, 67.5, 0), V(0, 0, 1), 4),
    Part.Circle(V(-60, 67.5, 0), V(0, 0, 1), 6),
    Part.Circle(V(-60, 67.5, 0), V(0, 0, 1), 4),
    Part.Circle(V(-60, -67.5, 0), V(0, 0, 1), 6),
    Part.Circle(V(-60, -67.5, 0), V(0, 0, 1), 4),
    Part.Circle(V(60, -67.5, 0), V(0, 0, 1), 6),
    Part.Circle(V(60, -67.5, 0), V(0, 0, 1), 4),
], False)
sketch9.addConstraint([
    Sketcher.Constraint("Coincident", 1, 3, 0, 3),
    Sketcher.Constraint("Coincident", 3, 3, 2, 3),
    Sketcher.Constraint("Coincident", 5, 3, 4, 3),
    Sketcher.Constraint("Coincident", 7, 3, 6, 3),
    Sketcher.Constraint("Equal", 0, 2),
    Sketcher.Constraint("Equal", 1, 3),
    Sketcher.Constraint("Equal", 2, 4),
    Sketcher.Constraint("Equal", 3, 5),
    Sketcher.Constraint("Equal", 4, 6),
    Sketcher.Constraint("Equal", 5, 7),
    Sketcher.Constraint("Symmetric", 0, 3, 4, 3, -1, 1),
    Sketcher.Constraint("Symmetric", 2, 3, 6, 3, -1, 1),
    Sketcher.Constraint("Symmetric", 0, 3, 2, 3, -2),
    Sketcher.Constraint("Diameter", 0, Q("12 mm")),
    Sketcher.Constraint("Diameter", 1, Q("8 mm")),
    Sketcher.Constraint("DistanceX", -1, 1, 0, 3, Q("60 mm")),
    Sketcher.Constraint("DistanceY", 4, 3, 2, 3, Q("135 mm")),
])
pocket5 = body.newObject("PartDesign::Pocket", "Pocket004")
pocket5.Profile = sketch9
pocket5.Length = 6
pocket5.Reversed = True

sketch10 = body.newObject("Sketcher::SketchObject", "Sketch009")
sketch10.AttachmentSupport = (doc.getObject("XY_Plane"), [""])
sketch10.MapMode = "FlatFace"
sketch10.AttachmentOffset = App.Placement(V(0, 0, -9), App.Rotation())
sketch10.addGeometry([
    Part.LineSegment(V(11, -13.5, 0), V(11, -17.5, 0)),
    Part.ArcOfCircle(Part.Circle(V(16.8, 0, 0), V(0, 0, 1), 18.5), math.radians(-172), math.radians(-108)),
    Part.LineSegment(V(-1.5, -2.5, 0), V(14, -2.5, 0)),
    Part.ArcOfCircle(Part.Circle(V(14, -5.5, 0), V(0, 0, 1), 3), math.radians(0), math.radians(90)),
    Part.LineSegment(V(17, -5.5, 0), V(17, -7.5, 0)),
    Part.ArcOfCircle(Part.Circle(V(14, -7.5, 0), V(0, 0, 1), 3), math.radians(-90), math.radians(0)),
    Part.ArcOfCircle(Part.Circle(V(14, -13.5, 0), V(0, 0, 1), 3), math.radians(90), math.radians(156)),
    Part.ArcOfCircle(Part.Circle(V(14, -13.5, 0), V(0, 0, 1), 3), math.radians(156), math.radians(180)),
    Part.ArcOfCircle(Part.Circle(V(16.8, 0, 0), V(0, 0, 1), 18.5), math.radians(108), math.radians(172)),
    Part.LineSegment(V(11, 17.5, 0), V(11, 13.5, 0)),
    Part.ArcOfCircle(Part.Circle(V(14, 13.5, 0), V(0, 0, 1), 3), math.radians(180), math.radians(204)),
    Part.ArcOfCircle(Part.Circle(V(14, 13.5, 0), V(0, 0, 1), 3), math.radians(-156), math.radians(-90)),
    Part.ArcOfCircle(Part.Circle(V(14, 7.5, 0), V(0, 0, 1), 3), math.radians(0), math.radians(90)),
    Part.LineSegment(V(17, 7.5, 0), V(17, 5.5, 0)),
    Part.ArcOfCircle(Part.Circle(V(14, 5.5, 0), V(0, 0, 1), 3), math.radians(-90), math.radians(0)),
    Part.LineSegment(V(14, 2.5, 0), V(-1.5, 2.5, 0)),
], False)
sketch10.addConstraint([
    Sketcher.Constraint("Coincident", 0, 2, 1, 2),
    Sketcher.Constraint("Coincident", 1, 1, 2, 1),
    Sketcher.Constraint("Tangent", 2, 2, 3, 2),
    Sketcher.Constraint("Tangent", 3, 1, 4, 1),
    Sketcher.Constraint("Tangent", 4, 2, 5, 2),
    Sketcher.Constraint("Tangent", 5, 1, 6, 1),
    Sketcher.Constraint("Tangent", 6, 2, 7, 1),
    Sketcher.Constraint("Tangent", 7, 2, 0, 1),
    Sketcher.Constraint("Coincident", 8, 1, 9, 1),
    Sketcher.Constraint("Tangent", 9, 2, 10, 1),
    Sketcher.Constraint("Tangent", 10, 2, 11, 1),
    Sketcher.Constraint("Tangent", 11, 2, 12, 2),
    Sketcher.Constraint("Tangent", 12, 1, 13, 1),
    Sketcher.Constraint("Tangent", 13, 2, 14, 2),
    Sketcher.Constraint("Tangent", 14, 1, 15, 1),
    Sketcher.Constraint("Coincident", 15, 2, 8, 2),
    Sketcher.Constraint("Vertical", 0),
    Sketcher.Constraint("Horizontal", 2),
    Sketcher.Constraint("Vertical", 4),
    Sketcher.Constraint("Vertical", 9),
    Sketcher.Constraint("Vertical", 13),
    Sketcher.Constraint("Horizontal", 15),
    Sketcher.Constraint("Coincident", 8, 3, 1, 3),
    Sketcher.Constraint("Equal", 3, 5),
    Sketcher.Constraint("Equal", 5, 6),
    Sketcher.Constraint("Equal", 6, 7),
    Sketcher.Constraint("Equal", 1, 8),
    Sketcher.Constraint("Equal", 7, 10),
    Sketcher.Constraint("Equal", 10, 11),
    Sketcher.Constraint("Equal", 11, 12),
    Sketcher.Constraint("Equal", 12, 14),
    Sketcher.Constraint("Symmetric", 6, 3, 10, 3, -1),
    Sketcher.Constraint("Symmetric", 3, 3, 14, 3, -1),
    Sketcher.Constraint("PointOnObject", 1, 3, -1),
    Sketcher.Constraint("Vertical", 5, 3, 6, 3),
    Sketcher.Constraint("Vertical", 6, 2, 10, 2),
    Sketcher.Constraint("Radius", 3, Q("3 mm")),
    Sketcher.Constraint("DistanceY", 4, 2, 4, 1, Q("2 mm")),
    Sketcher.Constraint("DistanceX", -1, 1, 3, 3, Q("14 mm")),
    Sketcher.Constraint("DistanceY", 3, 3, 10, 3, Q("19 mm")),
    Sketcher.Constraint("Radius", 1, Q("18.468279 mm")),
    Sketcher.Constraint("DistanceX", 2, 1, 2, 2, Q("15.541584 mm")),
    Sketcher.Constraint("DistanceX", 15, 2, 10, 2, Q("12.795229 mm")),
])
pocket6 = body.newObject("PartDesign::Pocket", "Pocket005")
pocket6.Profile = sketch10
pocket6.Length = 9
doc.recompute()

fillet = body.newObject("PartDesign::Fillet", "Fillet")
fillet.Base = (pocket6, edges_at(pocket6, [
    (-57, -23.703, -18),
    (-57, 23.703, -18),
    (25, 0, -5),
    (25, 16.527, -11.5),
    (25, -16.527, -11.5),
    (25, -27.887, -18),
    (35.225, 0, -18),
]))
fillet.Radius = 3
doc.recompute()

fillet2 = body.newObject("PartDesign::Fillet", "Fillet001")
fillet2.Base = (fillet, edges_at(fillet, [(0, -90, -25)]))
fillet2.Radius = 2

sketch11 = body.newObject("Sketcher::SketchObject", "Sketch010")
sketch11.AttachmentSupport = (doc.getObject("XY_Plane"), [""])
sketch11.MapMode = "FlatFace"
sketch11.addGeometry([
    Part.LineSegment(V(15, -108, 0), V(33, -90, 0)),
    Part.LineSegment(V(33, -90, 0), V(70, -90, 0)),
    Part.ArcOfCircle(Part.Circle(V(70, -80, 0), V(0, 0, 1), 10), math.radians(-90), math.radians(0)),
    Part.LineSegment(V(80, -80, 0), V(80, 80, 0)),
    Part.ArcOfCircle(Part.Circle(V(70, 80, 0), V(0, 0, 1), 10), math.radians(0), math.radians(90)),
    Part.LineSegment(V(70, 90, 0), V(33, 90, 0)),
    Part.LineSegment(V(33, 90, 0), V(15, 108, 0)),
    Part.LineSegment(V(15, 108, 0), V(15, 120, 0)),
    Part.ArcOfCircle(Part.Circle(V(0, 120, 0), V(0, 0, 1), 15), math.radians(0), math.radians(180)),
    Part.LineSegment(V(-15, 120, 0), V(-15, 108, 0)),
    Part.LineSegment(V(-15, 108, 0), V(-33, 90, 0)),
    Part.LineSegment(V(-33, 90, 0), V(-70, 90, 0)),
    Part.ArcOfCircle(Part.Circle(V(-70, 80, 0), V(0, 0, 1), 10), math.radians(90), math.radians(180)),
    Part.LineSegment(V(-80, 80, 0), V(-80, -80, 0)),
    Part.ArcOfCircle(Part.Circle(V(-70, -80, 0), V(0, 0, 1), 10), math.radians(180), math.radians(270)),
    Part.LineSegment(V(-70, -90, 0), V(-33, -90, 0)),
    Part.LineSegment(V(-33, -90, 0), V(-15, -108, 0)),
    Part.LineSegment(V(-15, -108, 0), V(-15, -120, 0)),
    Part.ArcOfCircle(Part.Circle(V(0, -120, 0), V(0, 0, 1), 15), math.radians(180), math.radians(360)),
    Part.LineSegment(V(15, -120, 0), V(15, -108, 0)),
    Part.Circle(V(-60, -67.5, 0), V(0, 0, 1), 4),
    Part.Circle(V(0, -120, 0), V(0, 0, 1), 6),
    Part.Circle(V(60, -67.5, 0), V(0, 0, 1), 4),
    Part.Circle(V(-60, 67.5, 0), V(0, 0, 1), 4),
    Part.LineSegment(V(-60, -40.3, 0), V(-60, 40.3, 0)),
    Part.ArcOfCircle(Part.Circle(V(-50, 40.3, 0), V(0, 0, 1), 10), math.radians(128), math.radians(180)),
    Part.ArcOfCircle(Part.Circle(V(0, -23.8, 0), V(0, 0, 1), 91.2), math.radians(52), math.radians(128)),
    Part.ArcOfCircle(Part.Circle(V(50, 40.3, 0), V(0, 0, 1), 10), math.radians(0), math.radians(52)),
    Part.LineSegment(V(60, 40.3, 0), V(60, -40.3, 0)),
    Part.ArcOfCircle(Part.Circle(V(50, -40.3, 0), V(0, 0, 1), 10), math.radians(-52), math.radians(0)),
    Part.ArcOfCircle(Part.Circle(V(0, 23.8, 0), V(0, 0, 1), 91.2), math.radians(-128), math.radians(-52)),
    Part.ArcOfCircle(Part.Circle(V(-50, -40.3, 0), V(0, 0, 1), 10), math.radians(180), math.radians(232)),
    Part.Circle(V(0, 120, 0), V(0, 0, 1), 6),
    Part.Circle(V(60, 67.5, 0), V(0, 0, 1), 4),
], False)
sketch11.addConstraint([
    Sketcher.Constraint("Coincident", 0, 2, 1, 1),
    Sketcher.Constraint("Tangent", 1, 2, 2, 1),
    Sketcher.Constraint("Tangent", 2, 2, 3, 1),
    Sketcher.Constraint("Tangent", 3, 2, 4, 1),
    Sketcher.Constraint("Tangent", 4, 2, 5, 1),
    Sketcher.Constraint("Coincident", 5, 2, 6, 1),
    Sketcher.Constraint("Coincident", 6, 2, 7, 1),
    Sketcher.Constraint("Tangent", 7, 2, 8, 1),
    Sketcher.Constraint("Tangent", 8, 2, 9, 1),
    Sketcher.Constraint("Coincident", 9, 2, 10, 1),
    Sketcher.Constraint("Coincident", 10, 2, 11, 1),
    Sketcher.Constraint("Tangent", 11, 2, 12, 1),
    Sketcher.Constraint("Tangent", 12, 2, 13, 1),
    Sketcher.Constraint("Tangent", 13, 2, 14, 1),
    Sketcher.Constraint("Tangent", 14, 2, 15, 1),
    Sketcher.Constraint("Coincident", 15, 2, 16, 1),
    Sketcher.Constraint("Coincident", 16, 2, 17, 1),
    Sketcher.Constraint("Tangent", 17, 2, 18, 1),
    Sketcher.Constraint("Tangent", 18, 2, 19, 1),
    Sketcher.Constraint("Coincident", 19, 2, 0, 1),
    Sketcher.Constraint("Tangent", 24, 2, 25, 2),
    Sketcher.Constraint("Tangent", 25, 1, 26, 2),
    Sketcher.Constraint("Tangent", 26, 1, 27, 2),
    Sketcher.Constraint("Tangent", 27, 1, 28, 1),
    Sketcher.Constraint("Tangent", 28, 2, 29, 2),
    Sketcher.Constraint("Tangent", 29, 1, 30, 2),
    Sketcher.Constraint("Tangent", 30, 1, 31, 2),
    Sketcher.Constraint("Tangent", 31, 1, 24, 1),
    Sketcher.Constraint("Horizontal", 1),
    Sketcher.Constraint("Vertical", 3),
    Sketcher.Constraint("Horizontal", 5),
    Sketcher.Constraint("Vertical", 7),
    Sketcher.Constraint("Vertical", 9),
    Sketcher.Constraint("Horizontal", 11),
    Sketcher.Constraint("Vertical", 13),
    Sketcher.Constraint("Horizontal", 15),
    Sketcher.Constraint("Vertical", 17),
    Sketcher.Constraint("Vertical", 19),
    Sketcher.Constraint("Vertical", 24),
    Sketcher.Constraint("Vertical", 28),
    Sketcher.Constraint("Coincident", 21, 3, 18, 3),
    Sketcher.Constraint("Coincident", 32, 3, 8, 3),
    Sketcher.Constraint("Equal", 2, 4),
    Sketcher.Constraint("Equal", 4, 12),
    Sketcher.Constraint("Equal", 12, 14),
    Sketcher.Constraint("Equal", 8, 18),
    Sketcher.Constraint("Equal", 20, 22),
    Sketcher.Constraint("Equal", 22, 23),
    Sketcher.Constraint("Equal", 14, 25),
    Sketcher.Constraint("Equal", 25, 27),
    Sketcher.Constraint("Equal", 27, 29),
    Sketcher.Constraint("Equal", 26, 30),
    Sketcher.Constraint("Equal", 29, 31),
    Sketcher.Constraint("Equal", 21, 32),
    Sketcher.Constraint("Equal", 23, 33),
    Sketcher.Constraint("Symmetric", 2, 3, 12, 3, -1, 1),
    Sketcher.Constraint("Symmetric", 8, 3, 18, 3, -1, 1),
    Sketcher.Constraint("Symmetric", 22, 3, 23, 3, -1, 1),
    Sketcher.Constraint("Symmetric", 25, 3, 29, 3, -1, 1),
    Sketcher.Constraint("Symmetric", 20, 3, 33, 3, -1, 1),
    Sketcher.Constraint("Symmetric", 5, 2, 15, 2, -1, 1),
    Sketcher.Constraint("Symmetric", 20, 3, 22, 3, -2),
    Sketcher.Constraint("Symmetric", 6, 2, 9, 2, -2),
    Sketcher.Constraint("Symmetric", 5, 2, 10, 2, -2),
    Sketcher.Constraint("Symmetric", 26, 3, 30, 3, -1),
    Sketcher.Constraint("Perpendicular", 0, 6),
    Sketcher.Constraint("Perpendicular", 6, 10),
    Sketcher.Constraint("Perpendicular", 10, 16),
    Sketcher.Constraint("Horizontal", 16, 2, 19, 2),
    Sketcher.Constraint("Vertical", 23, 3, 24, 2),
    Sketcher.Constraint("Diameter", 20, Q("8 mm")),
    Sketcher.Constraint("Diameter", 21, Q("12 mm")),
    Sketcher.Constraint("Radius", 2, Q("10 mm")),
    Sketcher.Constraint("Radius", 8, Q("15 mm")),
    Sketcher.Constraint("DistanceX", 1, 1, 1, 2, Q("37 mm")),
    Sketcher.Constraint("DistanceY", 3, 1, 3, 2, Q("160 mm")),
    Sketcher.Constraint("DistanceY", 7, 1, 7, 2, Q("12 mm")),
    Sketcher.Constraint("Radius", 26, Q("91.25 mm")),
    Sketcher.Constraint("DistanceX", -1, 1, 2, 3, Q("70 mm")),
    Sketcher.Constraint("DistanceX", 20, 3, -1, 1, Q("60 mm")),
    Sketcher.Constraint("DistanceY", 20, 3, 23, 3, Q("135 mm")),
    Sketcher.Constraint("DistanceY", 26, 3, 30, 3, Q("47.5 mm")),
])
pad5 = body.newObject("PartDesign::Pad", "Pad004")
pad5.Profile = sketch11
pad5.Type = "UpToLast"

doc.recompute()
